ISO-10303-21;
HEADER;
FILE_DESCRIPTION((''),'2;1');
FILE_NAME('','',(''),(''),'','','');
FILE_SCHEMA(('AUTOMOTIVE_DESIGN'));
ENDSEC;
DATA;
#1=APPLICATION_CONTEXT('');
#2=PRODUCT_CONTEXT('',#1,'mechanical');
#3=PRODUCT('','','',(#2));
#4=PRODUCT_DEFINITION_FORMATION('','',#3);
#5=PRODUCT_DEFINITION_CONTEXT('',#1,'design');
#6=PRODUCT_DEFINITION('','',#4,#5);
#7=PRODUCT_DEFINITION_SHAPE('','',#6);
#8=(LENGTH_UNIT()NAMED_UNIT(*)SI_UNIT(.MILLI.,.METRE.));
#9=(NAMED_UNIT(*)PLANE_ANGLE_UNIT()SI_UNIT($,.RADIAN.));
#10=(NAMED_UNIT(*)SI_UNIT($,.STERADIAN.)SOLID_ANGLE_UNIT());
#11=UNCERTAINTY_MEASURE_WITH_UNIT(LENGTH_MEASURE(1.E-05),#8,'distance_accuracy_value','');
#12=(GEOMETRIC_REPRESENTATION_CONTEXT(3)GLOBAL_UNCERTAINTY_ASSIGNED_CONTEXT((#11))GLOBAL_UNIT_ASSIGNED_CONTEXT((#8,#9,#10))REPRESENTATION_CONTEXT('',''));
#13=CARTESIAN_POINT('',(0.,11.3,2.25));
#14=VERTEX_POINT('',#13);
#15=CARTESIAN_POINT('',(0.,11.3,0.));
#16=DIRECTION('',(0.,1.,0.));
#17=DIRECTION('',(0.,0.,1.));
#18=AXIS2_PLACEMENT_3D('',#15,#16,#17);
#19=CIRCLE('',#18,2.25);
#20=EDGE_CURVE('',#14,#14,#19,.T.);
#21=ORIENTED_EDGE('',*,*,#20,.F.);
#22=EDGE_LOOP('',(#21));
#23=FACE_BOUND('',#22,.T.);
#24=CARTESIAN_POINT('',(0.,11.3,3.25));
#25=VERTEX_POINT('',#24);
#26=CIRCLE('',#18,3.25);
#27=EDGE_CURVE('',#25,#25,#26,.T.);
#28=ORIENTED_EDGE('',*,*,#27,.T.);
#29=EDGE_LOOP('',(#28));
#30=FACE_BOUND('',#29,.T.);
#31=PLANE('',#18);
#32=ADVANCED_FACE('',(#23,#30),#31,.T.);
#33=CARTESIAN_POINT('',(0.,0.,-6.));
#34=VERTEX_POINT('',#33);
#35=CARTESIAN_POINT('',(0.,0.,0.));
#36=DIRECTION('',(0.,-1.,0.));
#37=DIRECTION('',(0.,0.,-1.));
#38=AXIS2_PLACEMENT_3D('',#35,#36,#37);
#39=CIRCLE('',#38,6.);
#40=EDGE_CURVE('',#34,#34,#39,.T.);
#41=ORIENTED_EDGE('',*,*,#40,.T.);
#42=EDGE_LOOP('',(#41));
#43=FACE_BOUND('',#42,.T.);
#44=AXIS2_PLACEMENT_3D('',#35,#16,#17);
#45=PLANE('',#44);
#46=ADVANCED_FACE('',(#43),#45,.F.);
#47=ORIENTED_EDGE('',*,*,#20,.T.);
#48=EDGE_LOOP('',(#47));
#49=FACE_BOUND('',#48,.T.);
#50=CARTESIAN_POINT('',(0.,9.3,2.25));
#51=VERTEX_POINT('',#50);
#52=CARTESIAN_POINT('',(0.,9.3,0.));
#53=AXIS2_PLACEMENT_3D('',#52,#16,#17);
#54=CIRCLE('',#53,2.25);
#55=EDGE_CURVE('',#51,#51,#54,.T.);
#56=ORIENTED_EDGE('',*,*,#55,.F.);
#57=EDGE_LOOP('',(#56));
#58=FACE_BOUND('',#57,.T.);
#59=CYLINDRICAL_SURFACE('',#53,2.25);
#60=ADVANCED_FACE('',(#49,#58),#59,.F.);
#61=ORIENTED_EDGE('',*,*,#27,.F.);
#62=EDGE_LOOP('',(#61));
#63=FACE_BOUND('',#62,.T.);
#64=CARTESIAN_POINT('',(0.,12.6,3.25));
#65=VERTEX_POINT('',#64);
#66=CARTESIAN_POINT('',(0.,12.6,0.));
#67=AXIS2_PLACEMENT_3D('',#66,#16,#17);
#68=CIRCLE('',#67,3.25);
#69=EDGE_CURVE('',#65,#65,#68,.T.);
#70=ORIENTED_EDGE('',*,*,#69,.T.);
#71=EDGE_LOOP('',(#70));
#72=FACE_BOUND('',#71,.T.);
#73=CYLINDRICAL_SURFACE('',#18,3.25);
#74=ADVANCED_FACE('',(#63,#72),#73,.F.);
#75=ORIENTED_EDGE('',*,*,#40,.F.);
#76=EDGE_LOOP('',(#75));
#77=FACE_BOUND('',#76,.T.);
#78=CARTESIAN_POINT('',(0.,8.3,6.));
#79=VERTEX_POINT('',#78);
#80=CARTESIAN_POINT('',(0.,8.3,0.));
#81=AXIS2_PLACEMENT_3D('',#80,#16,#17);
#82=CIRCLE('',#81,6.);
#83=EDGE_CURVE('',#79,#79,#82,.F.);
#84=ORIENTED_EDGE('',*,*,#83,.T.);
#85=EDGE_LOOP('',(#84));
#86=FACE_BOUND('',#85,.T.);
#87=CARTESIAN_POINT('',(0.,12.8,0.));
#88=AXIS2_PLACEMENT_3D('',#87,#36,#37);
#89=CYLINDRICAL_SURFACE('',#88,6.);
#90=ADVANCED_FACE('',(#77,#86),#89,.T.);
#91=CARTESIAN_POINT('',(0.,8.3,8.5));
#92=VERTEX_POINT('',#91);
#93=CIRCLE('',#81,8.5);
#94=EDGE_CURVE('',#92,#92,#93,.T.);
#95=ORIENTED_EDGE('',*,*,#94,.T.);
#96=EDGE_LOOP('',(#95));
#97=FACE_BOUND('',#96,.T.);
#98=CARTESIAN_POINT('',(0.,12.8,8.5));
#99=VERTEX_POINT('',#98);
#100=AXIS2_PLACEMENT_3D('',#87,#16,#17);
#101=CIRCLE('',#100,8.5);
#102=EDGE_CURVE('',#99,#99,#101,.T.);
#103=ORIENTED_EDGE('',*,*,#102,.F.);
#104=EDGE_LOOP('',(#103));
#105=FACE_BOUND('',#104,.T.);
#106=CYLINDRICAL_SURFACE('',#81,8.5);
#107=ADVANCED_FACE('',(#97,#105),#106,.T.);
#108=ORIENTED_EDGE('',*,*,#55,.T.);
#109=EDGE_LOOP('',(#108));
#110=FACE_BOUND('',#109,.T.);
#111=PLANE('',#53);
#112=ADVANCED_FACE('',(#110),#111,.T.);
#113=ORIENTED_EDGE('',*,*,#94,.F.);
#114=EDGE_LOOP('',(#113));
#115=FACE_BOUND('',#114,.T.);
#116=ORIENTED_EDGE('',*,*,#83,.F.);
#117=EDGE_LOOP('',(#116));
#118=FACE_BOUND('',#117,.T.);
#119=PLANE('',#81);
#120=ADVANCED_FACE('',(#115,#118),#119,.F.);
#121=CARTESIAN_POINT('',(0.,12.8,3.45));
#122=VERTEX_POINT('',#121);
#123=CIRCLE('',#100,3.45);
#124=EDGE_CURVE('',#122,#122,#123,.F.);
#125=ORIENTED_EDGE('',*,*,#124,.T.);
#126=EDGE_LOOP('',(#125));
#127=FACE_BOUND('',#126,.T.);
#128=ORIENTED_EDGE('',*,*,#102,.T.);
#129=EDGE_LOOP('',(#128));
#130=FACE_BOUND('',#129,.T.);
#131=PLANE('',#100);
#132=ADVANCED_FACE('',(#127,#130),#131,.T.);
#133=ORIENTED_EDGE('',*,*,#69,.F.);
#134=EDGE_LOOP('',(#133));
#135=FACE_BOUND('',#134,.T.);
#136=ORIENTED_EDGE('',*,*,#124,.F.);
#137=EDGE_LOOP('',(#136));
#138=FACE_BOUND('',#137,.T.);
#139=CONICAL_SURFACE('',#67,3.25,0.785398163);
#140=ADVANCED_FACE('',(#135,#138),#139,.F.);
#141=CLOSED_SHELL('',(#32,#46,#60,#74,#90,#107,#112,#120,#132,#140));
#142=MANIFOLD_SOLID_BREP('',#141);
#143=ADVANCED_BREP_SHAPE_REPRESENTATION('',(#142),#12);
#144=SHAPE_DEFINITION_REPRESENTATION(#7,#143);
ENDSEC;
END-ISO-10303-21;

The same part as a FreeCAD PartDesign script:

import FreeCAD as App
import Part
import Sketcher

V = App.Vector
Q = App.Units.Quantity


def edges_at(feature, points):
    """Names of the edges that pass closest to the given points."""
    edges = feature.Shape.Edges
    near = lambda p: min(range(len(edges)), key=lambda i: edges[i].distToShape(Part.Vertex(*p))[0])
    return sorted({f"Edge{near(p) + 1}" for p in points})


def add_polygon(sketch, points):
    """Adds a closed chain of lines whose ends are joined by coincident constraints."""
    first, n = sketch.GeometryCount, len(points)
    for a, b in zip(points, points[1:] + points[:1]):
        sketch.addGeometry(Part.LineSegment(App.Vector(*a, 0), App.Vector(*b, 0)), False)
    for i in range(n):
        sketch.addConstraint(Sketcher.Constraint("Coincident", first + i, 2, first + (i + 1) % n, 1))

doc = App.newDocument("Part")
body = doc.addObject("PartDesign::Body", "Body")

# Sketch on XZ plane
sketch1 = body.newObject("Sketcher::SketchObject", "Sketch")
sketch1.AttachmentSupport = (doc.getObject("XZ_Plane"), [""])
sketch1.MapMode = "FlatFace"
sketch1.addGeometry(Part.Circle(V(0, 0, 0), V(0, 0, 1), 7), False)
sketch1.addConstraint(Sketcher.Constraint("Coincident", 0, 3, -1, 1))
sketch1.addConstraint(Sketcher.Constraint("Diameter", 0, Q("14 mm")))
pad1 = body.newObject("PartDesign::Pad", "Pad")
pad1.Profile = sketch1
pad1.Length = 12.8
pad1.Reversed = True

# Sketch on XZ plane
sketch2 = body.newObject("Sketcher::SketchObject", "Sketch001")
sketch2.AttachmentSupport = (doc.getObject("XZ_Plane"), [""])
sketch2.MapMode = "FlatFace"
add_polygon(sketch2, [(-10.358, 10.358), (-10.358, -10.358), (10.358, -10.358), (10.358, 10.358)])  # lines 0-3
sketch2.addGeometry(Part.Circle(V(0, 0, 0), V(0, 0, 1), 6), False)  # 4
sketch2.addConstraint(Sketcher.Constraint("Vertical", 0))
sketch2.addConstraint(Sketcher.Constraint("Horizontal", 1))
sketch2.addConstraint(Sketcher.Constraint("Vertical", 2))
sketch2.addConstraint(Sketcher.Constraint("Horizontal", 3))
sketch2.addConstraint(Sketcher.Constraint("Coincident", 4, 3, -1, 1))
sketch2.addConstraint(Sketcher.Constraint("Symmetric", 0, 2, 2, 2, -1, 1))
sketch2.addConstraint(Sketcher.Constraint("Equal", 3, 0))
sketch2.addConstraint(Sketcher.Constraint("Diameter", 4, Q("12 mm")))
sketch2.addConstraint(Sketcher.Constraint("DistanceX", 1, 1, 1, 2, Q("20.716 mm")))
pocket1 = body.newObject("PartDesign::Pocket", "Pocket")
pocket1.Profile = sketch2
pocket1.Type = "ThroughAll"

# Sketch on XZ plane
sketch3 = body.newObject("Sketcher::SketchObject", "Sketch002")
sketch3.AttachmentSupport = (doc.getObject("XZ_Plane"), [""])
sketch3.MapMode = "FlatFace"
sketch3.AttachmentOffset = App.Placement(V(0, 0, -12.8), App.Rotation())
sketch3.addGeometry(Part.Circle(V(0, 0, 0), V(0, 0, 1), 3.25), False)
sketch3.addConstraint(Sketcher.Constraint("Coincident", 0, 3, -1, 1))
sketch3.addConstraint(Sketcher.Constraint("Diameter", 0, Q("6.5 mm")))
pocket2 = body.newObject("PartDesign::Pocket", "Pocket001")
pocket2.Profile = sketch3
pocket2.Length = 1.5
pocket2.Reversed = True

# Sketch on XZ plane
sketch4 = body.newObject("Sketcher::SketchObject", "Sketch003")
sketch4.AttachmentSupport = (doc.getObject("XZ_Plane"), [""])
sketch4.MapMode = "FlatFace"
sketch4.AttachmentOffset = App.Placement(V(0, 0, -11.3), App.Rotation())
sketch4.addGeometry(Part.Circle(V(0, 0, 0), V(0, 0, 1), 2.25), False)
sketch4.addConstraint(Sketcher.Constraint("Coincident", 0, 3, -1, 1))
sketch4.addConstraint(Sketcher.Constraint("Diameter", 0, Q("4.5 mm")))
pocket3 = body.newObject("PartDesign::Pocket", "Pocket002")
pocket3.Profile = sketch4
pocket3.Length = 2
pocket3.Reversed = True
doc.recompute()

chamfer = body.newObject("PartDesign::Chamfer", "Chamfer")
chamfer.Base = (pocket3, edges_at(pocket3, [(-3.25, 12.8, 0)]))
chamfer.Size = 0.2

# Sketch on XZ plane
sketch5 = body.newObject("Sketcher::SketchObject", "Sketch004")
sketch5.AttachmentSupport = (doc.getObject("XZ_Plane"), [""])
sketch5.MapMode = "FlatFace"
sketch5.AttachmentOffset = App.Placement(V(0, 0, -12.8), App.Rotation())
sketch5.addGeometry(Part.Circle(V(0, 0, 0), V(0, 0, 1), 8.5), False)
sketch5.addGeometry(Part.Circle(V(0, 0, 0), V(0, 0, 1), 5.212412), False)
sketch5.addConstraint(Sketcher.Constraint("Coincident", 0, 3, -1, 1))
sketch5.addConstraint(Sketcher.Constraint("Coincident", 1, 3, -1, 1))
sketch5.addConstraint(Sketcher.Constraint("Diameter", 0, Q("17 mm")))
sketch5.addConstraint(Sketcher.Constraint("Diameter", 1, Q("10.424823 mm")))
pad2 = body.newObject("PartDesign::Pad", "Pad001")
pad2.Profile = sketch5
pad2.Length = 4.5

doc.recompute()
